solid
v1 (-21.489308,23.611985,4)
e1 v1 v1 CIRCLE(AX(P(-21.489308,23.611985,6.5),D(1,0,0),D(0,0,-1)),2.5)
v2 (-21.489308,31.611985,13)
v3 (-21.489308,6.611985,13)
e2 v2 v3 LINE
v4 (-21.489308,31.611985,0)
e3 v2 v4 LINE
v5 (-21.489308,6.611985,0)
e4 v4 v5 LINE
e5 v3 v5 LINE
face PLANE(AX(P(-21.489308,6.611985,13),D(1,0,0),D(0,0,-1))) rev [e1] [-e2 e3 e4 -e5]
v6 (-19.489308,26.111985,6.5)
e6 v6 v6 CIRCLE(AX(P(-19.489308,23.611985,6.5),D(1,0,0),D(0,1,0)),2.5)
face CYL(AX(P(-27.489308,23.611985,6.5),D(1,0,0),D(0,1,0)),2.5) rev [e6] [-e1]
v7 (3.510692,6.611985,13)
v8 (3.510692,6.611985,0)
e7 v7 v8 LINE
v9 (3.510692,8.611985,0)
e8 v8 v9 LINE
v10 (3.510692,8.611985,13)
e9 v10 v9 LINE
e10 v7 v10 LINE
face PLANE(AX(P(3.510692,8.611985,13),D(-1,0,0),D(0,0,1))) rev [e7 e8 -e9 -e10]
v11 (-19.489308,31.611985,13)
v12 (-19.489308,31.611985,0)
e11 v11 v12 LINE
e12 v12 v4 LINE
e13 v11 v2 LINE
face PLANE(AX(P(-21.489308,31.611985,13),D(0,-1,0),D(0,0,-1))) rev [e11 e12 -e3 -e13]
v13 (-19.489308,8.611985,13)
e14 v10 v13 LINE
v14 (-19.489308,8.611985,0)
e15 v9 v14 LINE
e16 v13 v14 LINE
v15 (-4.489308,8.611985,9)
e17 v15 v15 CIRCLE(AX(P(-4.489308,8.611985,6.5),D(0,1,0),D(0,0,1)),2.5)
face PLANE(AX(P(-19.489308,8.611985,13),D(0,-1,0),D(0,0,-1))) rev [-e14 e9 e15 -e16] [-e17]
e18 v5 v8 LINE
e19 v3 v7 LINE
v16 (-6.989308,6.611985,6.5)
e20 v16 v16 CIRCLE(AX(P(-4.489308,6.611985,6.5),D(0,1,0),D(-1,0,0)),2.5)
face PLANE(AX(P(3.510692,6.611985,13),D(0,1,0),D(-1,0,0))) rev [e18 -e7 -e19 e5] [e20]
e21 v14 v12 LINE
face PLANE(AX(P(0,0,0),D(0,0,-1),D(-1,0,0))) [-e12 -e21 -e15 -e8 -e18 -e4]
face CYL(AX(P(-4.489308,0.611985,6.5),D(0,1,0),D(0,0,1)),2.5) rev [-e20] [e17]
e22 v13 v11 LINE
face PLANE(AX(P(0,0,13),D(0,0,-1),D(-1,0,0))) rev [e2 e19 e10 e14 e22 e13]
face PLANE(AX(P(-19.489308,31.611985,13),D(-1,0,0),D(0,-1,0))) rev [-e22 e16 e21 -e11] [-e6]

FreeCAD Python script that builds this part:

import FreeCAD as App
import Part
import Sketcher

V = App.Vector


def add_polygon(sketch, points):
    """Adds a closed chain of lines whose ends are joined by coincident constraints."""
    first, n = sketch.GeometryCount, len(points)
    for a, b in zip(points, points[1:] + points[:1]):
        sketch.addGeometry(Part.LineSegment(App.Vector(*a, 0), App.Vector(*b, 0)), False)
    for i in range(n):
        sketch.addConstraint(Sketcher.Constraint("Coincident", first + i, 2, first + (i + 1) % n, 1))

doc = App.newDocument("Part")
body = doc.addObject("PartDesign::Body", "Body")

sketch1 = body.newObject("Sketcher::SketchObject", "Sketch")
sketch1.AttachmentSupport = (doc.getObject("XY_Plane"), [""])
sketch1.MapMode = "FlatFace"
add_polygon(sketch1, [(3.5, 6.6), (3.5, 8.6), (-19.5, 8.6), (-19.5, 31.6), (-21.5, 31.6), (-21.5, 6.6)])
sketch1.addConstraint([
    Sketcher.Constraint("Vertical", 0),
    Sketcher.Constraint("Horizontal", 1),
    Sketcher.Constraint("Vertical", 2),
    Sketcher.Constraint("Horizontal", 3),
    Sketcher.Constraint("Vertical", 4),
    Sketcher.Constraint("Horizontal", 5),
    Sketcher.Constraint("Equal", 3, 0),
    Sketcher.Constraint("Equal", 1, 2),
    Sketcher.Constraint("DistanceX", 1, 2, 1, 1, 23.0),
    Sketcher.Constraint("DistanceX", 3, 2, 3, 1, 2.0),
    Sketcher.Constraint("DistanceX", -1, 1, 0, 2, 3.510692),
    Sketcher.Constraint("DistanceY", -1, 1, 0, 2, 8.611985),
])
pad1 = body.newObject("PartDesign::Pad", "Pad")
pad1.Profile = sketch1
pad1.Length = 13

sketch2 = body.newObject("Sketcher::SketchObject", "Sketch001")
sketch2.AttachmentSupport = (doc.getObject("YZ_Plane"), [""])
sketch2.MapMode = "FlatFace"
sketch2.AttachmentOffset = App.Placement(V(0, 0, -19.489308), App.Rotation())
sketch2.addGeometry(Part.Circle(V(23.6, 6.5, 0), V(0, 0, 1), 2.5), False)
sketch2.addConstraint([
    Sketcher.Constraint("Diameter", 0, 5.0),
    Sketcher.Constraint("DistanceY", -1, 1, 0, 3, 6.5),
    Sketcher.Constraint("DistanceX", -1, 1, 0, 3, 23.611985),
])
pocket1 = body.newObject("PartDesign::Pocket", "Pocket")
pocket1.Profile = sketch2
pocket1.Length = 8

sketch3 = body.newObject("Sketcher::SketchObject", "Sketch002")
sketch3.AttachmentSupport = (doc.getObject("XZ_Plane"), [""])
sketch3.MapMode = "FlatFace"
sketch3.AttachmentOffset = App.Placement(V(0, 0, -8.611985), App.Rotation())
sketch3.addGeometry(Part.Circle(V(-4.5, 6.5, 0), V(0, 0, 1), 2.5), False)
sketch3.addConstraint([
    Sketcher.Constraint("Diameter", 0, 5.0),
    Sketcher.Constraint("DistanceY", -1, 1, 0, 3, 6.5),
    Sketcher.Constraint("DistanceX", 0, 3, -1, 1, 4.489308),
])
pocket2 = body.newObject("PartDesign::Pocket", "Pocket001")
pocket2.Profile = sketch3
pocket2.Length = 8
pocket2.Reversed = True

doc.recompute()
